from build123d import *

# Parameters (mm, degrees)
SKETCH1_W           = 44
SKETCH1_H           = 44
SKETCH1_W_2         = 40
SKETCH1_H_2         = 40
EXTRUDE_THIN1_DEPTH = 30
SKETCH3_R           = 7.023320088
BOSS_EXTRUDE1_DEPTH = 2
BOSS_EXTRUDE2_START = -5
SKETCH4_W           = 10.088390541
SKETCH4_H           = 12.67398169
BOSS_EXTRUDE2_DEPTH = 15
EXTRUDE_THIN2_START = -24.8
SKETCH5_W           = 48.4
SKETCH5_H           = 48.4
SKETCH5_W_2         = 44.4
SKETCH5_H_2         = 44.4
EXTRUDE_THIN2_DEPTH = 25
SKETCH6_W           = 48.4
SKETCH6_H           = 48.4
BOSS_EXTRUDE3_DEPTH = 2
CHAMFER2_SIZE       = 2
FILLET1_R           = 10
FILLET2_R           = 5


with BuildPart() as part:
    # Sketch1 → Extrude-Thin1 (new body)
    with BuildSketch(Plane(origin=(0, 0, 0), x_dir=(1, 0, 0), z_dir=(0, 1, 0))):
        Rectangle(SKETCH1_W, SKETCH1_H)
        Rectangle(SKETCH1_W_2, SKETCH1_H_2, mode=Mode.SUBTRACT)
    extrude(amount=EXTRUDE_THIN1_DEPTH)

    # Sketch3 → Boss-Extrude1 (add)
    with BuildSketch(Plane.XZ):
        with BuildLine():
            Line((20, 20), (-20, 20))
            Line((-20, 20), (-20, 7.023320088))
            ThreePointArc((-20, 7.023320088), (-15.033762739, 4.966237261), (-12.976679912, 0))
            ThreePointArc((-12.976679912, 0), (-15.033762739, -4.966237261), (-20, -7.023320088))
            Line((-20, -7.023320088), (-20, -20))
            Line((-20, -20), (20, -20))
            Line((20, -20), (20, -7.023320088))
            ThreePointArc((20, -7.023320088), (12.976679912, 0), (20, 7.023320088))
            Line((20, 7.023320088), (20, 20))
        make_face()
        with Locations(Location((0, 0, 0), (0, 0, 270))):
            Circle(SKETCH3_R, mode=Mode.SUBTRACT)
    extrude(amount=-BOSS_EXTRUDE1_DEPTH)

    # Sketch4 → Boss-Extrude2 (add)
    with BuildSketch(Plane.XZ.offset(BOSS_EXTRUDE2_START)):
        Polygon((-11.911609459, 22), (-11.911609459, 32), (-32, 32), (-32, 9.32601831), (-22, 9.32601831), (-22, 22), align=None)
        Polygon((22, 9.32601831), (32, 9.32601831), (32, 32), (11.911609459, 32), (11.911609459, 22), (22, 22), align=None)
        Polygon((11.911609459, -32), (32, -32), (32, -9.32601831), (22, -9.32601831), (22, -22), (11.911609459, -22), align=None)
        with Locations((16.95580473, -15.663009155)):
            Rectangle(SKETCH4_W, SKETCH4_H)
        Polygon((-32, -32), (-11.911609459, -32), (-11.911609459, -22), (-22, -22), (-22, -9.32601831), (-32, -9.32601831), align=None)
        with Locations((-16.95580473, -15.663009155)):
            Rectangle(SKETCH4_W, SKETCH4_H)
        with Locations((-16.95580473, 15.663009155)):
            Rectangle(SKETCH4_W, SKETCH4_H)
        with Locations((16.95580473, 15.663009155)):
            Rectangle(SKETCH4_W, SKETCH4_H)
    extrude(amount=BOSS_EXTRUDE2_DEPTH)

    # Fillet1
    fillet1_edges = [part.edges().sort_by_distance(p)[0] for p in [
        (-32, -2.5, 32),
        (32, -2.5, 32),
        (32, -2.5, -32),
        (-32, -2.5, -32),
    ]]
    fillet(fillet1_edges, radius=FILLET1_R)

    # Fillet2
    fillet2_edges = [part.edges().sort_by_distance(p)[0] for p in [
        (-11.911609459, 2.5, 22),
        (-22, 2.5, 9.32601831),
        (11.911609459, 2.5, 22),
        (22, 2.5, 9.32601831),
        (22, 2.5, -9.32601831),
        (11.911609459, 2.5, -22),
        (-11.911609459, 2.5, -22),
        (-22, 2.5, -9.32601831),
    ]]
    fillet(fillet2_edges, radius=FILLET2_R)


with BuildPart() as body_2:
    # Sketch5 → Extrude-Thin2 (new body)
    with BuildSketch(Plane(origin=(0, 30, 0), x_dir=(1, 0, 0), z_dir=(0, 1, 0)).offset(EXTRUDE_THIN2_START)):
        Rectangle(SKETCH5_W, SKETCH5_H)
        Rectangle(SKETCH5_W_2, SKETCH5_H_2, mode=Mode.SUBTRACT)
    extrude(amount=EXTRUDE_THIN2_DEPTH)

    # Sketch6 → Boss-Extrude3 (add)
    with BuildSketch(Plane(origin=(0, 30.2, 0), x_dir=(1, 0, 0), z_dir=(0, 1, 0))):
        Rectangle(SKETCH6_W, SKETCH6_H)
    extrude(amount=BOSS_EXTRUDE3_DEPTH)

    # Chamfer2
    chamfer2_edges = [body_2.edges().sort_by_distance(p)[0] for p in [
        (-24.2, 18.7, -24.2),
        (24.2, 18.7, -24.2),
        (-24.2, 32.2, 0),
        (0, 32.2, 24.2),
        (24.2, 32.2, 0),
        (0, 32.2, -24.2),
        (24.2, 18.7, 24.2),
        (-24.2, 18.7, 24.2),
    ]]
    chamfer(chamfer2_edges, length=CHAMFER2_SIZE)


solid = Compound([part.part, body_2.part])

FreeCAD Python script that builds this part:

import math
import FreeCAD as App
import Part
import Sketcher
from FreeCAD import Vector
Q = App.Units.Quantity


def edges_at(feature, points):
    """Names of the edges that pass closest to the given points."""
    edges = feature.Shape.Edges
    near = lambda p: min(range(len(edges)), key=lambda i: edges[i].distToShape(Part.Vertex(*p))[0])
    return sorted({f"Edge{near(p) + 1}" for p in points})


def add_polygon(sketch, points):
    """Adds a closed chain of lines whose ends are joined by coincident constraints."""
    first, n = sketch.GeometryCount, len(points)
    for a, b in zip(points, points[1:] + points[:1]):
        sketch.addGeometry(Part.LineSegment(App.Vector(*a, 0), App.Vector(*b, 0)), False)
    for i in range(n):
        sketch.addConstraint(Sketcher.Constraint("Coincident", first + i, 2, first + (i + 1) % n, 1))

doc = App.newDocument("Part")
body = doc.addObject("PartDesign::Body", "Body")

# Sketch on XZ plane
sketch1 = body.newObject("Sketcher::SketchObject", "Sketch")
sketch1.AttachmentSupport = (doc.getObject("XZ_Plane"), [""])
sketch1.MapMode = "FlatFace"
add_polygon(sketch1, [(-22, -22), (-22, 22), (22, 22), (22, -22)])  # lines 0-3
add_polygon(sketch1, [(20, 20), (-20, 20), (-20, -20), (20, -20)])  # lines 4-7
sketch1.addConstraint(Sketcher.Constraint("Vertical", 0))
sketch1.addConstraint(Sketcher.Constraint("Horizontal", 1))
sketch1.addConstraint(Sketcher.Constraint("Vertical", 2))
sketch1.addConstraint(Sketcher.Constraint("Horizontal", 3))
sketch1.addConstraint(Sketcher.Constraint("Horizontal", 4))
sketch1.addConstraint(Sketcher.Constraint("Vertical", 5))
sketch1.addConstraint(Sketcher.Constraint("Horizontal", 6))
sketch1.addConstraint(Sketcher.Constraint("Vertical", 7))
sketch1.addConstraint(Sketcher.Constraint("Symmetric", 0, 2, 2, 2, -1, 1))
sketch1.addConstraint(Sketcher.Constraint("Symmetric", 4, 2, 6, 2, -1, 1))
sketch1.addConstraint(Sketcher.Constraint("Equal", 3, 0))
sketch1.addConstraint(Sketcher.Constraint("Equal", 6, 5))
sketch1.addConstraint(Sketcher.Constraint("DistanceX", 1, 1, 1, 2, Q("44 mm")))
sketch1.addConstraint(Sketcher.Constraint("DistanceX", 4, 2, 4, 1, Q("40 mm")))
pad1 = body.newObject("PartDesign::Pad", "Pad")
pad1.Profile = sketch1
pad1.Length = 30
pad1.Reversed = True

# Sketch on XZ plane
sketch2 = body.newObject("Sketcher::SketchObject", "Sketch001")
sketch2.AttachmentSupport = (doc.getObject("XZ_Plane"), [""])
sketch2.MapMode = "FlatFace"
sketch2.addGeometry(Part.LineSegment(Vector(20, 20, 0), Vector(-20, 20, 0)), False)
sketch2.addGeometry(Part.LineSegment(Vector(-20, 20, 0), Vector(-20, 7, 0)), False)
sketch2.addGeometry(Part.ArcOfCircle(Part.Circle(Vector(-20, 0, 0), Vector(0, 0, 1), 7), math.radians(0), math.radians(90)), False)
sketch2.addGeometry(Part.ArcOfCircle(Part.Circle(Vector(-20, 0, 0), Vector(0, 0, 1), 7), math.radians(-90), math.radians(0)), False)
sketch2.addGeometry(Part.LineSegment(Vector(-20, -7, 0), Vector(-20, -20, 0)), False)
sketch2.addGeometry(Part.LineSegment(Vector(-20, -20, 0), Vector(20, -20, 0)), False)
sketch2.addGeometry(Part.LineSegment(Vector(20, -20, 0), Vector(20, -7, 0)), False)
sketch2.addGeometry(Part.ArcOfCircle(Part.Circle(Vector(20, 0, 0), Vector(0, 0, 1), 7), math.radians(90), math.radians(270)), False)
sketch2.addGeometry(Part.LineSegment(Vector(20, 7, 0), Vector(20, 20, 0)), False)
sketch2.addGeometry(Part.Circle(Vector(0, 0, 0), Vector(0, 0, 1), 7), False)
sketch2.addConstraint(Sketcher.Constraint("Coincident", 0, 2, 1, 1))
sketch2.addConstraint(Sketcher.Constraint("Coincident", 1, 2, 2, 2))
sketch2.addConstraint(Sketcher.Constraint("Tangent", 2, 1, 3, 2))
sketch2.addConstraint(Sketcher.Constraint("Coincident", 3, 1, 4, 1))
sketch2.addConstraint(Sketcher.Constraint("Coincident", 4, 2, 5, 1))
sketch2.addConstraint(Sketcher.Constraint("Coincident", 5, 2, 6, 1))
sketch2.addConstraint(Sketcher.Constraint("Coincident", 6, 2, 7, 2))
sketch2.addConstraint(Sketcher.Constraint("Coincident", 7, 1, 8, 1))
sketch2.addConstraint(Sketcher.Constraint("Coincident", 8, 2, 0, 1))
sketch2.addConstraint(Sketcher.Constraint("Horizontal", 0))
sketch2.addConstraint(Sketcher.Constraint("Vertical", 1))
sketch2.addConstraint(Sketcher.Constraint("Vertical", 4))
sketch2.addConstraint(Sketcher.Constraint("Horizontal", 5))
sketch2.addConstraint(Sketcher.Constraint("Vertical", 6))
sketch2.addConstraint(Sketcher.Constraint("Vertical", 8))
sketch2.addConstraint(Sketcher.Constraint("Coincident", 9, 3, -1, 1))
sketch2.addConstraint(Sketcher.Constraint("Equal", 2, 3))
sketch2.addConstraint(Sketcher.Constraint("Equal", 3, 7))
sketch2.addConstraint(Sketcher.Constraint("Equal", 7, 9))
sketch2.addConstraint(Sketcher.Constraint("Symmetric", 2, 3, 7, 3, -1, 1))
sketch2.addConstraint(Sketcher.Constraint("Symmetric", 0, 2, 5, 2, -1, 1))
sketch2.addConstraint(Sketcher.Constraint("Symmetric", 3, 1, 6, 2, -2))
sketch2.addConstraint(Sketcher.Constraint("PointOnObject", 2, 1, -1))
sketch2.addConstraint(Sketcher.Constraint("Vertical", 3, 3, 0, 2))
sketch2.addConstraint(Sketcher.Constraint("Vertical", 6, 2, 7, 1))
sketch2.addConstraint(Sketcher.Constraint("DistanceX", 0, 2, 0, 1, Q("40 mm")))
sketch2.addConstraint(Sketcher.Constraint("DistanceY", -1, 1, 0, 2, Q("20 mm")))
sketch2.addConstraint(Sketcher.Constraint("Diameter", 9, Q("14.04664 mm")))
pad2 = body.newObject("PartDesign::Pad", "Pad001")
pad2.Profile = sketch2
pad2.Length = 2
pad2.Reversed = True

# Sketch on XZ plane
sketch3 = body.newObject("Sketcher::SketchObject", "Sketch002")
sketch3.AttachmentSupport = (doc.getObject("XZ_Plane"), [""])
sketch3.MapMode = "FlatFace"
sketch3.AttachmentOffset = App.Placement(Vector(0, 0, -5), App.Rotation())
add_polygon(sketch3, [(-12, 22), (-12, 32), (-32, 32), (-32, 9), (-12, 9)])  # lines 0-4
add_polygon(sketch3, [(32, 9), (32, 32), (12, 32), (12, 22), (12, 9)])  # lines 5-9
add_polygon(sketch3, [(12, -32), (32, -32), (32, -9), (12, -9), (12, -22)])  # lines 10-14
add_polygon(sketch3, [(-32, -32), (-12, -32), (-12, -22), (-12, -9), (-32, -9)])  # lines 15-19
sketch3.addConstraint(Sketcher.Constraint("Vertical", 0))
sketch3.addConstraint(Sketcher.Constraint("Horizontal", 1))
sketch3.addConstraint(Sketcher.Constraint("Vertical", 2))
sketch3.addConstraint(Sketcher.Constraint("Horizontal", 3))
sketch3.addConstraint(Sketcher.Constraint("Vertical", 4))
sketch3.addConstraint(Sketcher.Constraint("Vertical", 5))
sketch3.addConstraint(Sketcher.Constraint("Horizontal", 6))
sketch3.addConstraint(Sketcher.Constraint("Vertical", 7))
sketch3.addConstraint(Sketcher.Constraint("Vertical", 8))
sketch3.addConstraint(Sketcher.Constraint("Horizontal", 9))
sketch3.addConstraint(Sketcher.Constraint("Horizontal", 10))
sketch3.addConstraint(Sketcher.Constraint("Vertical", 11))
sketch3.addConstraint(Sketcher.Constraint("Horizontal", 12))
sketch3.addConstraint(Sketcher.Constraint("Vertical", 13))
sketch3.addConstraint(Sketcher.Constraint("Vertical", 14))
sketch3.addConstraint(Sketcher.Constraint("Horizontal", 15))
sketch3.addConstraint(Sketcher.Constraint("Vertical", 16))
sketch3.addConstraint(Sketcher.Constraint("Vertical", 17))
sketch3.addConstraint(Sketcher.Constraint("Horizontal", 18))
sketch3.addConstraint(Sketcher.Constraint("Vertical", 19))
sketch3.addConstraint(Sketcher.Constraint("Symmetric", 1, 2, 10, 2, -1, 1))
sketch3.addConstraint(Sketcher.Constraint("Symmetric", 3, 2, 12, 2, -1, 1))
sketch3.addConstraint(Sketcher.Constraint("Symmetric", 6, 2, 15, 2, -1, 1))
sketch3.addConstraint(Sketcher.Constraint("Symmetric", 9, 2, 18, 2, -1, 1))
sketch3.addConstraint(Sketcher.Constraint("Symmetric", 1, 2, 5, 2, -2))
sketch3.addConstraint(Sketcher.Constraint("Symmetric", 4, 2, 7, 2, -2))
sketch3.addConstraint(Sketcher.Constraint("Horizontal", 3, 2, 8, 2))
sketch3.addConstraint(Sketcher.Constraint("Horizontal", 13, 2, 16, 2))
sketch3.addConstraint(Sketcher.Constraint("Equal", 8, 13))
sketch3.addConstraint(Sketcher.Constraint("DistanceY", 0, 1, 0, 2, Q("10 mm")))
sketch3.addConstraint(Sketcher.Constraint("DistanceY", -1, 1, 0, 2, Q("32 mm")))
sketch3.addConstraint(Sketcher.Constraint("DistanceX", 1, 2, -1, 1, Q("32 mm")))
sketch3.addConstraint(Sketcher.Constraint("DistanceX", 1, 2, 1, 1, Q("20.088391 mm")))
sketch3.addConstraint(Sketcher.Constraint("DistanceY", 2, 2, 2, 1, Q("22.673982 mm")))
pad3 = body.newObject("PartDesign::Pad", "Pad002")
pad3.Profile = sketch3
pad3.Length = 15
doc.recompute()

fillet = body.newObject("PartDesign::Fillet", "Fillet")
fillet.Base = (pad3, edges_at(pad3, [
    (-32, -2.5, 32),
    (32, -2.5, 32),
    (32, -2.5, -32),
    (-32, -2.5, -32),
]))
fillet.Radius = 10
doc.recompute()

fillet2 = body.newObject("PartDesign::Fillet", "Fillet001")
fillet2.Base = (fillet, edges_at(fillet, [
    (-11.912, 2.5, 22),
    (-22, 2.5, 9.326),
    (11.912, 2.5, 22),
    (22, 2.5, 9.326),
    (22, 2.5, -9.326),
    (11.912, 2.5, -22),
    (-11.912, 2.5, -22),
    (-22, 2.5, -9.326),
]))
fillet2.Radius = 5
body2 = doc.addObject("PartDesign::Body", "Body001")

# Sketch on XZ plane
sketch4 = body2.newObject("Sketcher::SketchObject", "Sketch003")
sketch4.AttachmentSupport = (doc.getObject("XZ_Plane001"), [""])
sketch4.MapMode = "FlatFace"
sketch4.AttachmentOffset = App.Placement(Vector(0, 0, -5.2), App.Rotation())
add_polygon(sketch4, [(-24, -24), (-24, 24), (24, 24), (24, -24)])  # lines 0-3
add_polygon(sketch4, [(22, 22), (-22, 22), (-22, -22), (22, -22)])  # lines 4-7
sketch4.addConstraint(Sketcher.Constraint("Vertical", 0))
sketch4.addConstraint(Sketcher.Constraint("Horizontal", 1))
sketch4.addConstraint(Sketcher.Constraint("Vertical", 2))
sketch4.addConstraint(Sketcher.Constraint("Horizontal", 3))
sketch4.addConstraint(Sketcher.Constraint("Horizontal", 4))
sketch4.addConstraint(Sketcher.Constraint("Vertical", 5))
sketch4.addConstraint(Sketcher.Constraint("Horizontal", 6))
sketch4.addConstraint(Sketcher.Constraint("Vertical", 7))
sketch4.addConstraint(Sketcher.Constraint("Symmetric", 0, 2, 2, 2, -1, 1))
sketch4.addConstraint(Sketcher.Constraint("Symmetric", 4, 2, 6, 2, -1, 1))
sketch4.addConstraint(Sketcher.Constraint("Equal", 3, 0))
sketch4.addConstraint(Sketcher.Constraint("Equal", 6, 5))
sketch4.addConstraint(Sketcher.Constraint("DistanceX", 1, 1, 1, 2, Q("48.4 mm")))
sketch4.addConstraint(Sketcher.Constraint("DistanceX", 4, 2, 4, 1, Q("44.4 mm")))
pad4 = body2.newObject("PartDesign::Pad", "Pad003")
pad4.Profile = sketch4
pad4.Length = 25
pad4.Reversed = True

# Sketch on XZ plane
sketch5 = body2.newObject("Sketcher::SketchObject", "Sketch004")
sketch5.AttachmentSupport = (doc.getObject("XZ_Plane001"), [""])
sketch5.MapMode = "FlatFace"
sketch5.AttachmentOffset = App.Placement(Vector(0, 0, -30.2), App.Rotation())
add_polygon(sketch5, [(-24, -24), (-24, 24), (24, 24), (24, -24)])  # lines 0-3
sketch5.addConstraint(Sketcher.Constraint("Vertical", 0))
sketch5.addConstraint(Sketcher.Constraint("Horizontal", 1))
sketch5.addConstraint(Sketcher.Constraint("Vertical", 2))
sketch5.addConstraint(Sketcher.Constraint("Horizontal", 3))
sketch5.addConstraint(Sketcher.Constraint("Symmetric", 0, 2, 2, 2, -1, 1))
sketch5.addConstraint(Sketcher.Constraint("Equal", 3, 0))
sketch5.addConstraint(Sketcher.Constraint("DistanceX", 1, 1, 1, 2, Q("48.4 mm")))
pad5 = body2.newObject("PartDesign::Pad", "Pad004")
pad5.Profile = sketch5
pad5.Length = 2
pad5.Reversed = True
doc.recompute()

chamfer = body2.newObject("PartDesign::Chamfer", "Chamfer")
chamfer.Base = (pad5, edges_at(pad5, [
    (-24.2, 18.7, -24.2),
    (24.2, 18.7, -24.2),
    (-24.2, 32.2, 0),
    (0, 32.2, 24.2),
    (24.2, 32.2, 0),
    (0, 32.2, -24.2),
    (24.2, 18.7, 24.2),
    (-24.2, 18.7, 24.2),
]))
chamfer.Size = 2

doc.recompute()
